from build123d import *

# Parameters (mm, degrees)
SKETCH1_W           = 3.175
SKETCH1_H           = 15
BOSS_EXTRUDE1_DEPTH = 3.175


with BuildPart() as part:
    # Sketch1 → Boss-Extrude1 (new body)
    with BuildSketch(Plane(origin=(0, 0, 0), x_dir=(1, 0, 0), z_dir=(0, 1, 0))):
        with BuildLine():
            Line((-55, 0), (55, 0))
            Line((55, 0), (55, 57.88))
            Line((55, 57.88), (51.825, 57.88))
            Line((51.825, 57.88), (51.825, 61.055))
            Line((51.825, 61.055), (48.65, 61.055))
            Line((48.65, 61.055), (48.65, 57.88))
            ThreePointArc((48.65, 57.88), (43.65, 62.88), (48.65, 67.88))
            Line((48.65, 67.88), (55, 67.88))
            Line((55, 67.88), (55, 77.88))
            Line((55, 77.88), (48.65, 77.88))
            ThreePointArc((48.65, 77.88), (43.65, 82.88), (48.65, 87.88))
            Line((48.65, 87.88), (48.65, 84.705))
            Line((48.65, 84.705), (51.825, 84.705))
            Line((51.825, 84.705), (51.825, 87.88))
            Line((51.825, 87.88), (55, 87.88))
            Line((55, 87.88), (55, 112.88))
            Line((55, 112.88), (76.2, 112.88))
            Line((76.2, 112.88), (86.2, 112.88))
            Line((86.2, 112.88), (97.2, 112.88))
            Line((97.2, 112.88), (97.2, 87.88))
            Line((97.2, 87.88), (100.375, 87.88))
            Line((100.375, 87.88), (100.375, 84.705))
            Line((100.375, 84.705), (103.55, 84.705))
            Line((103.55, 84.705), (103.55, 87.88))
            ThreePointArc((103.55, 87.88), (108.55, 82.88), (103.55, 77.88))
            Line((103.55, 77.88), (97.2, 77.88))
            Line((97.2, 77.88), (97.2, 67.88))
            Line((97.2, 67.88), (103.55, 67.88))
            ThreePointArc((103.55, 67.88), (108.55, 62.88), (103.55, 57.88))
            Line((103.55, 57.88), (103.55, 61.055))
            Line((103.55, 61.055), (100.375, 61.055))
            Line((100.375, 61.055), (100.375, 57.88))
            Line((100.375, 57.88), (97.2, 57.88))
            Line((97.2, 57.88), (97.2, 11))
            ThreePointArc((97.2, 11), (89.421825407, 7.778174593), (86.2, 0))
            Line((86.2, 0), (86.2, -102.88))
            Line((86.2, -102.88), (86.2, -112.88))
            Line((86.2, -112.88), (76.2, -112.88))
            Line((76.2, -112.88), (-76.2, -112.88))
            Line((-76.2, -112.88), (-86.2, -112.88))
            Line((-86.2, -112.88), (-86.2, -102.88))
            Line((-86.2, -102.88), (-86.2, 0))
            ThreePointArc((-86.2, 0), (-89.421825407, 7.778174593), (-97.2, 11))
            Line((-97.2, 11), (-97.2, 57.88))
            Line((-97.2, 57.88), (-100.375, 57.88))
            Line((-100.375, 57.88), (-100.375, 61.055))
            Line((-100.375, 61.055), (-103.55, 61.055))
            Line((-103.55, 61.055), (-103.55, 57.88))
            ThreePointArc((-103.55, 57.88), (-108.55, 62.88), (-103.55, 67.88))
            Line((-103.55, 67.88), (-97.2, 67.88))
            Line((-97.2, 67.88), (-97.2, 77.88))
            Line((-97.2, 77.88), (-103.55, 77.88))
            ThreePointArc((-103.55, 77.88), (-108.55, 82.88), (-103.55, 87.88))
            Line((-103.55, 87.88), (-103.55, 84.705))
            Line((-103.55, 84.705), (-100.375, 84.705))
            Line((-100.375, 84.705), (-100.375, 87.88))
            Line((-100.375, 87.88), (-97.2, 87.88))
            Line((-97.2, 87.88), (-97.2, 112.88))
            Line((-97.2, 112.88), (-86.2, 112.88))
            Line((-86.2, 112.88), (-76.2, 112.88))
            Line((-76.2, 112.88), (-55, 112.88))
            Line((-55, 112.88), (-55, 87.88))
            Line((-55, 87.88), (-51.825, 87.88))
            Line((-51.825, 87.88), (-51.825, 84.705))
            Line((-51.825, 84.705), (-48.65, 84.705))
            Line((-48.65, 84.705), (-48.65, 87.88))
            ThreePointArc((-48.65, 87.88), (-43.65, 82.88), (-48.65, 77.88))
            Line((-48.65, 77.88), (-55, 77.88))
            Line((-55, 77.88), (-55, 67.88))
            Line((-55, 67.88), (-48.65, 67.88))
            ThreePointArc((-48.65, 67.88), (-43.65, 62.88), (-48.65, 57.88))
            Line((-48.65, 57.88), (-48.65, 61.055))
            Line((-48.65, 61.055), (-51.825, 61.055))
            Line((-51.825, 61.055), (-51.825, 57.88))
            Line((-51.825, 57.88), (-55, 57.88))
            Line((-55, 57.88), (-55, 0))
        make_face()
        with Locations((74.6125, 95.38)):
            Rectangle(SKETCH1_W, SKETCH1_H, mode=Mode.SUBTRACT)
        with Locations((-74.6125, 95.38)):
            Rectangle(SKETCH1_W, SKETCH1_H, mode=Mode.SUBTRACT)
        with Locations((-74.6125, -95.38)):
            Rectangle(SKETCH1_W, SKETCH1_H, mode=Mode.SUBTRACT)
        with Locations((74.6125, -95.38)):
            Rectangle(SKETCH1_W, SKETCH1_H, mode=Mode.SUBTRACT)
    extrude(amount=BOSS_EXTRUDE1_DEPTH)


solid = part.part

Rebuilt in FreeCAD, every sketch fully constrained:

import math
import FreeCAD as App
import Part
import Sketcher


def add_polygon(sketch, points):
    """Adds a closed chain of lines whose ends are joined by coincident constraints."""
    first, n = sketch.GeometryCount, len(points)
    for a, b in zip(points, points[1:] + points[:1]):
        sketch.addGeometry(Part.LineSegment(App.Vector(*a, 0), App.Vector(*b, 0)), False)
    for i in range(n):
        sketch.addConstraint(Sketcher.Constraint("Coincident", first + i, 2, first + (i + 1) % n, 1))

doc = App.newDocument("Part")
body = doc.addObject("PartDesign::Body", "Body")

sketch1 = body.newObject("Sketcher::SketchObject", "Sketch")
sketch1.AttachmentSupport = (doc.getObject("XZ_Plane"), [""])
sketch1.MapMode = "FlatFace"
sketch1.addGeometry(Part.LineSegment(App.Vector(55, 0, 0), App.Vector(-55, 0, 0)), False)
sketch1.addGeometry(Part.LineSegment(App.Vector(-55, 0, 0), App.Vector(-55, -57.9, 0)), False)
sketch1.addGeometry(Part.LineSegment(App.Vector(-55, -57.9, 0), App.Vector(-51.8, -57.9, 0)), False)
sketch1.addGeometry(Part.LineSegment(App.Vector(-51.8, -57.9, 0), App.Vector(-51.8, -61.1, 0)), False)
sketch1.addGeometry(Part.LineSegment(App.Vector(-51.8, -61.1, 0), App.Vector(-48.6, -61.1, 0)), False)
sketch1.addGeometry(Part.LineSegment(App.Vector(-48.6, -61.1, 0), App.Vector(-48.6, -57.9, 0)), False)
sketch1.addGeometry(Part.ArcOfCircle(Part.Circle(App.Vector(-48.6, -62.9, 0), App.Vector(0, 0, 1), 5), math.radians(-90), math.radians(90)), False)
sketch1.addGeometry(Part.LineSegment(App.Vector(-48.6, -67.9, 0), App.Vector(-55, -67.9, 0)), False)
sketch1.addGeometry(Part.LineSegment(App.Vector(-55, -67.9, 0), App.Vector(-55, -77.9, 0)), False)
sketch1.addGeometry(Part.LineSegment(App.Vector(-55, -77.9, 0), App.Vector(-48.6, -77.9, 0)), False)
sketch1.addGeometry(Part.ArcOfCircle(Part.Circle(App.Vector(-48.6, -82.9, 0), App.Vector(0, 0, 1), 5), math.radians(-90), math.radians(90)), False)
sketch1.addGeometry(Part.LineSegment(App.Vector(-48.6, -87.9, 0), App.Vector(-48.6, -84.7, 0)), False)
sketch1.addGeometry(Part.LineSegment(App.Vector(-48.6, -84.7, 0), App.Vector(-51.8, -84.7, 0)), False)
sketch1.addGeometry(Part.LineSegment(App.Vector(-51.8, -84.7, 0), App.Vector(-51.8, -87.9, 0)), False)
sketch1.addGeometry(Part.LineSegment(App.Vector(-51.8, -87.9, 0), App.Vector(-55, -87.9, 0)), False)
sketch1.addGeometry(Part.LineSegment(App.Vector(-55, -87.9, 0), App.Vector(-55, -112.9, 0)), False)
sketch1.addGeometry(Part.LineSegment(App.Vector(-55, -112.9, 0), App.Vector(-97.2, -112.9, 0)), False)
sketch1.addGeometry(Part.LineSegment(App.Vector(-97.2, -112.9, 0), App.Vector(-97.2, -87.9, 0)), False)
sketch1.addGeometry(Part.LineSegment(App.Vector(-97.2, -87.9, 0), App.Vector(-100.4, -87.9, 0)), False)
sketch1.addGeometry(Part.LineSegment(App.Vector(-100.4, -87.9, 0), App.Vector(-100.4, -84.7, 0)), False)
sketch1.addGeometry(Part.LineSegment(App.Vector(-100.4, -84.7, 0), App.Vector(-103.5, -84.7, 0)), False)
sketch1.addGeometry(Part.LineSegment(App.Vector(-103.5, -84.7, 0), App.Vector(-103.5, -87.9, 0)), False)
sketch1.addGeometry(Part.ArcOfCircle(Part.Circle(App.Vector(-103.5, -82.9, 0), App.Vector(0, 0, 1), 5), math.radians(90), math.radians(270)), False)
sketch1.addGeometry(Part.LineSegment(App.Vector(-103.5, -77.9, 0), App.Vector(-97.2, -77.9, 0)), False)
sketch1.addGeometry(Part.LineSegment(App.Vector(-97.2, -77.9, 0), App.Vector(-97.2, -67.9, 0)), False)
sketch1.addGeometry(Part.LineSegment(App.Vector(-97.2, -67.9, 0), App.Vector(-103.5, -67.9, 0)), False)
sketch1.addGeometry(Part.ArcOfCircle(Part.Circle(App.Vector(-103.5, -62.9, 0), App.Vector(0, 0, 1), 5), math.radians(90), math.radians(270)), False)
sketch1.addGeometry(Part.LineSegment(App.Vector(-103.5, -57.9, 0), App.Vector(-103.5, -61.1, 0)), False)
sketch1.addGeometry(Part.LineSegment(App.Vector(-103.5, -61.1, 0), App.Vector(-100.4, -61.1, 0)), False)
sketch1.addGeometry(Part.LineSegment(App.Vector(-100.4, -61.1, 0), App.Vector(-100.4, -57.9, 0)), False)
sketch1.addGeometry(Part.LineSegment(App.Vector(-100.4, -57.9, 0), App.Vector(-97.2, -57.9, 0)), False)
sketch1.addGeometry(Part.LineSegment(App.Vector(-97.2, -57.9, 0), App.Vector(-97.2, -11, 0)), False)
sketch1.addGeometry(Part.ArcOfCircle(Part.Circle(App.Vector(-97.2, 0, 0), App.Vector(0, 0, 1), 11), math.radians(-90), math.radians(0)), False)
sketch1.addGeometry(Part.LineSegment(App.Vector(-86.2, 0, 0), App.Vector(-86.2, 112.9, 0)), False)
sketch1.addGeometry(Part.LineSegment(App.Vector(-86.2, 112.9, 0), App.Vector(86.2, 112.9, 0)), False)
sketch1.addGeometry(Part.LineSegment(App.Vector(86.2, 112.9, 0), App.Vector(86.2, 0, 0)), False)
sketch1.addGeometry(Part.ArcOfCircle(Part.Circle(App.Vector(97.2, 0, 0), App.Vector(0, 0, 1), 11), math.radians(180), math.radians(270)), False)
sketch1.addGeometry(Part.LineSegment(App.Vector(97.2, -11, 0), App.Vector(97.2, -57.9, 0)), False)
sketch1.addGeometry(Part.LineSegment(App.Vector(97.2, -57.9, 0), App.Vector(100.4, -57.9, 0)), False)
sketch1.addGeometry(Part.LineSegment(App.Vector(100.4, -57.9, 0), App.Vector(100.4, -61.1, 0)), False)
sketch1.addGeometry(Part.LineSegment(App.Vector(100.4, -61.1, 0), App.Vector(103.5, -61.1, 0)), False)
sketch1.addGeometry(Part.LineSegment(App.Vector(103.5, -61.1, 0), App.Vector(103.5, -57.9, 0)), False)
sketch1.addGeometry(Part.ArcOfCircle(Part.Circle(App.Vector(103.5, -62.9, 0), App.Vector(0, 0, 1), 5), math.radians(-90), math.radians(90)), False)
sketch1.addGeometry(Part.LineSegment(App.Vector(103.5, -67.9, 0), App.Vector(97.2, -67.9, 0)), False)
sketch1.addGeometry(Part.LineSegment(App.Vector(97.2, -67.9, 0), App.Vector(97.2, -77.9, 0)), False)
sketch1.addGeometry(Part.LineSegment(App.Vector(97.2, -77.9, 0), App.Vector(103.5, -77.9, 0)), False)
sketch1.addGeometry(Part.ArcOfCircle(Part.Circle(App.Vector(103.5, -82.9, 0), App.Vector(0, 0, 1), 5), math.radians(-90), math.radians(90)), False)
sketch1.addGeometry(Part.LineSegment(App.Vector(103.5, -87.9, 0), App.Vector(103.5, -84.7, 0)), False)
sketch1.addGeometry(Part.LineSegment(App.Vector(103.5, -84.7, 0), App.Vector(100.4, -84.7, 0)), False)
sketch1.addGeometry(Part.LineSegment(App.Vector(100.4, -84.7, 0), App.Vector(100.4, -87.9, 0)), False)
sketch1.addGeometry(Part.LineSegment(App.Vector(100.4, -87.9, 0), App.Vector(97.2, -87.9, 0)), False)
sketch1.addGeometry(Part.LineSegment(App.Vector(97.2, -87.9, 0), App.Vector(97.2, -112.9, 0)), False)
sketch1.addGeometry(Part.LineSegment(App.Vector(97.2, -112.9, 0), App.Vector(55, -112.9, 0)), False)
sketch1.addGeometry(Part.LineSegment(App.Vector(55, -112.9, 0), App.Vector(55, -87.9, 0)), False)
sketch1.addGeometry(Part.LineSegment(App.Vector(55, -87.9, 0), App.Vector(51.8, -87.9, 0)), False)
sketch1.addGeometry(Part.LineSegment(App.Vector(51.8, -87.9, 0), App.Vector(51.8, -84.7, 0)), False)
sketch1.addGeometry(Part.LineSegment(App.Vector(51.8, -84.7, 0), App.Vector(48.6, -84.7, 0)), False)
sketch1.addGeometry(Part.LineSegment(App.Vector(48.6, -84.7, 0), App.Vector(48.6, -87.9, 0)), False)
sketch1.addGeometry(Part.ArcOfCircle(Part.Circle(App.Vector(48.6, -82.9, 0), App.Vector(0, 0, 1), 5), math.radians(90), math.radians(270)), False)
sketch1.addGeometry(Part.LineSegment(App.Vector(48.6, -77.9, 0), App.Vector(55, -77.9, 0)), False)
sketch1.addGeometry(Part.LineSegment(App.Vector(55, -77.9, 0), App.Vector(55, -67.9, 0)), False)
sketch1.addGeometry(Part.LineSegment(App.Vector(55, -67.9, 0), App.Vector(48.6, -67.9, 0)), False)
sketch1.addGeometry(Part.ArcOfCircle(Part.Circle(App.Vector(48.6, -62.9, 0), App.Vector(0, 0, 1), 5), math.radians(90), math.radians(270)), False)
sketch1.addGeometry(Part.LineSegment(App.Vector(48.6, -57.9, 0), App.Vector(48.6, -61.1, 0)), False)
sketch1.addGeometry(Part.LineSegment(App.Vector(48.6, -61.1, 0), App.Vector(51.8, -61.1, 0)), False)
sketch1.addGeometry(Part.LineSegment(App.Vector(51.8, -61.1, 0), App.Vector(51.8, -57.9, 0)), False)
sketch1.addGeometry(Part.LineSegment(App.Vector(51.8, -57.9, 0), App.Vector(55, -57.9, 0)), False)
sketch1.addGeometry(Part.LineSegment(App.Vector(55, -57.9, 0), App.Vector(55, 0, 0)), False)
add_polygon(sketch1, [(73, 102.9), (73, 87.9), (76.2, 87.9), (76.2, 102.9)])
add_polygon(sketch1, [(-76.2, 102.9), (-76.2, 87.9), (-73, 87.9), (-73, 102.9)])
add_polygon(sketch1, [(73, -87.9), (73, -102.9), (76.2, -102.9), (76.2, -87.9)])
add_polygon(sketch1, [(-76.2, -87.9), (-76.2, -102.9), (-73, -102.9), (-73, -87.9)])
sketch1.addConstraint([
    Sketcher.Constraint("Coincident", 0, 2, 1, 1),
    Sketcher.Constraint("Coincident", 1, 2, 2, 1),
    Sketcher.Constraint("Coincident", 2, 2, 3, 1),
    Sketcher.Constraint("Coincident", 3, 2, 4, 1),
    Sketcher.Constraint("Coincident", 4, 2, 5, 1),
    Sketcher.Constraint("Coincident", 5, 2, 6, 2),
    Sketcher.Constraint("Tangent", 6, 1, 7, 1),
    Sketcher.Constraint("Coincident", 7, 2, 8, 1),
    Sketcher.Constraint("Coincident", 8, 2, 9, 1),
    Sketcher.Constraint("Tangent", 9, 2, 10, 2),
    Sketcher.Constraint("Coincident", 10, 1, 11, 1),
    Sketcher.Constraint("Coincident", 11, 2, 12, 1),
    Sketcher.Constraint("Coincident", 12, 2, 13, 1),
    Sketcher.Constraint("Coincident", 13, 2, 14, 1),
    Sketcher.Constraint("Coincident", 14, 2, 15, 1),
    Sketcher.Constraint("Coincident", 15, 2, 16, 1),
    Sketcher.Constraint("Coincident", 16, 2, 17, 1),
    Sketcher.Constraint("Coincident", 17, 2, 18, 1),
    Sketcher.Constraint("Coincident", 18, 2, 19, 1),
    Sketcher.Constraint("Coincident", 19, 2, 20, 1),
    Sketcher.Constraint("Coincident", 20, 2, 21, 1),
    Sketcher.Constraint("Coincident", 21, 2, 22, 2),
    Sketcher.Constraint("Tangent", 22, 1, 23, 1),
    Sketcher.Constraint("Coincident", 23, 2, 24, 1),
    Sketcher.Constraint("Coincident", 24, 2, 25, 1),
    Sketcher.Constraint("Tangent", 25, 2, 26, 2),
    Sketcher.Constraint("Coincident", 26, 1, 27, 1),
    Sketcher.Constraint("Coincident", 27, 2, 28, 1),
    Sketcher.Constraint("Coincident", 28, 2, 29, 1),
    Sketcher.Constraint("Coincident", 29, 2, 30, 1),
    Sketcher.Constraint("Coincident", 30, 2, 31, 1),
    Sketcher.Constraint("Coincident", 31, 2, 32, 1),
    Sketcher.Constraint("Tangent", 32, 2, 33, 1),
    Sketcher.Constraint("Coincident", 33, 2, 34, 1),
    Sketcher.Constraint("Coincident", 34, 2, 35, 1),
    Sketcher.Constraint("Tangent", 35, 2, 36, 1),
    Sketcher.Constraint("Coincident", 36, 2, 37, 1),
    Sketcher.Constraint("Coincident", 37, 2, 38, 1),
    Sketcher.Constraint("Coincident", 38, 2, 39, 1),
    Sketcher.Constraint("Coincident", 39, 2, 40, 1),
    Sketcher.Constraint("Coincident", 40, 2, 41, 1),
    Sketcher.Constraint("Coincident", 41, 2, 42, 2),
    Sketcher.Constraint("Tangent", 42, 1, 43, 1),
    Sketcher.Constraint("Coincident", 43, 2, 44, 1),
    Sketcher.Constraint("Coincident", 44, 2, 45, 1),
    Sketcher.Constraint("Tangent", 45, 2, 46, 2),
    Sketcher.Constraint("Coincident", 46, 1, 47, 1),
    Sketcher.Constraint("Coincident", 47, 2, 48, 1),
    Sketcher.Constraint("Coincident", 48, 2, 49, 1),
    Sketcher.Constraint("Coincident", 49, 2, 50, 1),
    Sketcher.Constraint("Coincident", 50, 2, 51, 1),
    Sketcher.Constraint("Coincident", 51, 2, 52, 1),
    Sketcher.Constraint("Coincident", 52, 2, 53, 1),
    Sketcher.Constraint("Coincident", 53, 2, 54, 1),
    Sketcher.Constraint("Coincident", 54, 2, 55, 1),
    Sketcher.Constraint("Coincident", 55, 2, 56, 1),
    Sketcher.Constraint("Coincident", 56, 2, 57, 1),
    Sketcher.Constraint("Coincident", 57, 2, 58, 2),
    Sketcher.Constraint("Tangent", 58, 1, 59, 1),
    Sketcher.Constraint("Coincident", 59, 2, 60, 1),
    Sketcher.Constraint("Coincident", 60, 2, 61, 1),
    Sketcher.Constraint("Tangent", 61, 2, 62, 2),
    Sketcher.Constraint("Coincident", 62, 1, 63, 1),
    Sketcher.Constraint("Coincident", 63, 2, 64, 1),
    Sketcher.Constraint("Coincident", 64, 2, 65, 1),
    Sketcher.Constraint("Coincident", 65, 2, 66, 1),
    Sketcher.Constraint("Coincident", 66, 2, 67, 1),
    Sketcher.Constraint("Coincident", 67, 2, 0, 1),
    Sketcher.Constraint("Horizontal", 0),
    Sketcher.Constraint("Vertical", 1),
    Sketcher.Constraint("Horizontal", 2),
    Sketcher.Constraint("Vertical", 3),
    Sketcher.Constraint("Horizontal", 4),
    Sketcher.Constraint("Vertical", 5),
    Sketcher.Constraint("Horizontal", 7),
    Sketcher.Constraint("Vertical", 8),
    Sketcher.Constraint("Horizontal", 9),
    Sketcher.Constraint("Vertical", 11),
    Sketcher.Constraint("Horizontal", 12),
    Sketcher.Constraint("Vertical", 13),
    Sketcher.Constraint("Horizontal", 14),
    Sketcher.Constraint("Vertical", 15),
    Sketcher.Constraint("Horizontal", 16),
    Sketcher.Constraint("Vertical", 17),
    Sketcher.Constraint("Horizontal", 18),
    Sketcher.Constraint("Vertical", 19),
    Sketcher.Constraint("Horizontal", 20),
    Sketcher.Constraint("Vertical", 21),
    Sketcher.Constraint("Horizontal", 23),
    Sketcher.Constraint("Vertical", 24),
    Sketcher.Constraint("Horizontal", 25),
    Sketcher.Constraint("Vertical", 27),
    Sketcher.Constraint("Horizontal", 28),
    Sketcher.Constraint("Vertical", 29),
    Sketcher.Constraint("Horizontal", 30),
    Sketcher.Constraint("Vertical", 31),
    Sketcher.Constraint("Vertical", 33),
    Sketcher.Constraint("Horizontal", 34),
    Sketcher.Constraint("Vertical", 35),
    Sketcher.Constraint("Vertical", 37),
    Sketcher.Constraint("Horizontal", 38),
    Sketcher.Constraint("Vertical", 39),
    Sketcher.Constraint("Horizontal", 40),
    Sketcher.Constraint("Vertical", 41),
    Sketcher.Constraint("Horizontal", 43),
    Sketcher.Constraint("Vertical", 44),
    Sketcher.Constraint("Horizontal", 45),
    Sketcher.Constraint("Vertical", 47),
    Sketcher.Constraint("Horizontal", 48),
    Sketcher.Constraint("Vertical", 49),
    Sketcher.Constraint("Horizontal", 50),
    Sketcher.Constraint("Vertical", 51),
    Sketcher.Constraint("Horizontal", 52),
    Sketcher.Constraint("Vertical", 53),
    Sketcher.Constraint("Horizontal", 54),
    Sketcher.Constraint("Vertical", 55),
    Sketcher.Constraint("Horizontal", 56),
    Sketcher.Constraint("Vertical", 57),
    Sketcher.Constraint("Horizontal", 59),
    Sketcher.Constraint("Vertical", 60),
    Sketcher.Constraint("Horizontal", 61),
    Sketcher.Constraint("Vertical", 63),
    Sketcher.Constraint("Horizontal", 64),
    Sketcher.Constraint("Vertical", 65),
    Sketcher.Constraint("Horizontal", 66),
    Sketcher.Constraint("Vertical", 67),
    Sketcher.Constraint("Vertical", 68),
    Sketcher.Constraint("Horizontal", 69),
    Sketcher.Constraint("Vertical", 70),
    Sketcher.Constraint("Horizontal", 71),
    Sketcher.Constraint("Vertical", 72),
    Sketcher.Constraint("Horizontal", 73),
    Sketcher.Constraint("Vertical", 74),
    Sketcher.Constraint("Horizontal", 75),
    Sketcher.Constraint("Vertical", 76),
    Sketcher.Constraint("Horizontal", 77),
    Sketcher.Constraint("Vertical", 78),
    Sketcher.Constraint("Horizontal", 79),
    Sketcher.Constraint("Vertical", 80),
    Sketcher.Constraint("Horizontal", 81),
    Sketcher.Constraint("Vertical", 82),
    Sketcher.Constraint("Horizontal", 83),
    Sketcher.Constraint("Equal", 6, 10),
    Sketcher.Constraint("Equal", 10, 22),
    Sketcher.Constraint("Equal", 22, 26),
    Sketcher.Constraint("Equal", 32, 36),
    Sketcher.Constraint("Equal", 26, 42),
    Sketcher.Constraint("Equal", 42, 46),
    Sketcher.Constraint("Equal", 46, 58),
    Sketcher.Constraint("Equal", 58, 62),
    Sketcher.Constraint("Symmetric", 32, 3, 36, 3, -1, 1),
    Sketcher.Constraint("Symmetric", 0, 2, 67, 2, -1, 1),
    Sketcher.Constraint("Symmetric", 74, 2, 76, 2, -1, 1),
    Sketcher.Constraint("Symmetric", 72, 2, 78, 2, -1, 1),
    Sketcher.Constraint("Symmetric", 70, 2, 80, 2, -1, 1),
    Sketcher.Constraint("Symmetric", 68, 2, 82, 2, -1, 1),
    Sketcher.Constraint("Symmetric", 26, 3, 42, 3, -2),
    Sketcher.Constraint("Symmetric", 22, 3, 46, 3, -2),
    Sketcher.Constraint("Symmetric", 10, 3, 58, 3, -2),
    Sketcher.Constraint("Symmetric", 6, 3, 62, 3, -2),
    Sketcher.Constraint("Symmetric", 31, 2, 36, 2, -2),
    Sketcher.Constraint("Symmetric", 29, 2, 38, 2, -2),
    Sketcher.Constraint("Symmetric", 27, 2, 40, 2, -2),
    Sketcher.Constraint("Symmetric", 20, 2, 47, 2, -2),
    Sketcher.Constraint("Symmetric", 18, 2, 49, 2, -2),
    Sketcher.Constraint("Symmetric", 16, 2, 51, 2, -2),
    Sketcher.Constraint("Symmetric", 14, 2, 53, 2, -2),
    Sketcher.Constraint("Symmetric", 12, 2, 55, 2, -2),
    Sketcher.Constraint("Symmetric", 4, 2, 63, 2, -2),
    Sketcher.Constraint("Symmetric", 2, 2, 65, 2, -2),
    Sketcher.Constraint("Symmetric", 69, 2, 72, 2, -2),
    Sketcher.Constraint("Symmetric", 71, 2, 74, 2, -2),
    Sketcher.Constraint("Horizontal", 10, 3, 22, 3),
    Sketcher.Constraint("Horizontal", 6, 3, 26, 3),
    Sketcher.Constraint("Horizontal", 2, 2, 5, 2),
    Sketcher.Constraint("Horizontal", 10, 1, 13, 2),
    Sketcher.Constraint("Horizontal", 14, 2, 17, 2),
    Sketcher.Constraint("Horizontal", 12, 2, 19, 2),
    Sketcher.Constraint("Horizontal", 4, 2, 27, 2),
    Sketcher.Constraint("Horizontal", 26, 1, 29, 2),
    Sketcher.Constraint("Horizontal", 57, 2, 78, 2),
    Sketcher.Constraint("Vertical", 6, 3, 10, 3),
    Sketcher.Constraint("Vertical", 22, 3, 26, 3),
    Sketcher.Constraint("Vertical", 10, 3, 4, 2),
    Sketcher.Constraint("Vertical", 1, 2, 7, 2),
    Sketcher.Constraint("Vertical", 9, 2, 10, 1),
    Sketcher.Constraint("Vertical", 3, 2, 12, 2),
    Sketcher.Constraint("Vertical", 8, 2, 14, 2),
    Sketcher.Constraint("Vertical", 32, 3, 16, 2),
    Sketcher.Constraint("Vertical", 26, 3, 20, 2),
    Sketcher.Constraint("Vertical", 17, 2, 23, 2),
    Sketcher.Constraint("Vertical", 25, 2, 26, 1),
    Sketcher.Constraint("Vertical", 19, 2, 28, 2),
    Sketcher.Constraint("Vertical", 24, 2, 30, 2),
    Sketcher.Constraint("Vertical", 37, 2, 43, 2),
    Sketcher.Constraint("Vertical", 62, 3, 56, 2),
    Sketcher.Constraint("Vertical", 53, 2, 59, 2),
    Sketcher.Constraint("Equal", 2, 4),
    Sketcher.Constraint("Equal", 14, 18),
    Sketcher.Constraint("Equal", 18, 20),
    Sketcher.Constraint("Equal", 66, 69),
    Sketcher.Constraint("Equal", 83, 3),
    Sketcher.Constraint("Equal", 5, 11),
    Sketcher.Constraint("Radius", 6, 5.0),
    Sketcher.Constraint("Radius", 32, 11.0),
    Sketcher.Constraint("DistanceX", 0, 2, 0, 1, 110.0),
    Sketcher.Constraint("DistanceY", 8, 2, 8, 1, 10.0),
    Sketcher.Constraint("DistanceY", 15, 2, 15, 1, 25.0),
    Sketcher.Constraint("DistanceY", 68, 2, 68, 1, 15.0),
    Sketcher.Constraint("DistanceX", 16, 2, 16, 1, 42.2),
    Sketcher.Constraint("DistanceX", 7, 2, 7, 1, 6.35),
    Sketcher.Constraint("DistanceY", 1, 2, 1, 1, 57.88),
    Sketcher.Constraint("DistanceY", 33, 1, 33, 2, 112.88),
    Sketcher.Constraint("DistanceX", -1, 1, 69, 2, 76.2),
])
pad1 = body.newObject("PartDesign::Pad", "Pad")
pad1.Profile = sketch1
pad1.Length = 3.175
pad1.Reversed = True

doc.recompute()
